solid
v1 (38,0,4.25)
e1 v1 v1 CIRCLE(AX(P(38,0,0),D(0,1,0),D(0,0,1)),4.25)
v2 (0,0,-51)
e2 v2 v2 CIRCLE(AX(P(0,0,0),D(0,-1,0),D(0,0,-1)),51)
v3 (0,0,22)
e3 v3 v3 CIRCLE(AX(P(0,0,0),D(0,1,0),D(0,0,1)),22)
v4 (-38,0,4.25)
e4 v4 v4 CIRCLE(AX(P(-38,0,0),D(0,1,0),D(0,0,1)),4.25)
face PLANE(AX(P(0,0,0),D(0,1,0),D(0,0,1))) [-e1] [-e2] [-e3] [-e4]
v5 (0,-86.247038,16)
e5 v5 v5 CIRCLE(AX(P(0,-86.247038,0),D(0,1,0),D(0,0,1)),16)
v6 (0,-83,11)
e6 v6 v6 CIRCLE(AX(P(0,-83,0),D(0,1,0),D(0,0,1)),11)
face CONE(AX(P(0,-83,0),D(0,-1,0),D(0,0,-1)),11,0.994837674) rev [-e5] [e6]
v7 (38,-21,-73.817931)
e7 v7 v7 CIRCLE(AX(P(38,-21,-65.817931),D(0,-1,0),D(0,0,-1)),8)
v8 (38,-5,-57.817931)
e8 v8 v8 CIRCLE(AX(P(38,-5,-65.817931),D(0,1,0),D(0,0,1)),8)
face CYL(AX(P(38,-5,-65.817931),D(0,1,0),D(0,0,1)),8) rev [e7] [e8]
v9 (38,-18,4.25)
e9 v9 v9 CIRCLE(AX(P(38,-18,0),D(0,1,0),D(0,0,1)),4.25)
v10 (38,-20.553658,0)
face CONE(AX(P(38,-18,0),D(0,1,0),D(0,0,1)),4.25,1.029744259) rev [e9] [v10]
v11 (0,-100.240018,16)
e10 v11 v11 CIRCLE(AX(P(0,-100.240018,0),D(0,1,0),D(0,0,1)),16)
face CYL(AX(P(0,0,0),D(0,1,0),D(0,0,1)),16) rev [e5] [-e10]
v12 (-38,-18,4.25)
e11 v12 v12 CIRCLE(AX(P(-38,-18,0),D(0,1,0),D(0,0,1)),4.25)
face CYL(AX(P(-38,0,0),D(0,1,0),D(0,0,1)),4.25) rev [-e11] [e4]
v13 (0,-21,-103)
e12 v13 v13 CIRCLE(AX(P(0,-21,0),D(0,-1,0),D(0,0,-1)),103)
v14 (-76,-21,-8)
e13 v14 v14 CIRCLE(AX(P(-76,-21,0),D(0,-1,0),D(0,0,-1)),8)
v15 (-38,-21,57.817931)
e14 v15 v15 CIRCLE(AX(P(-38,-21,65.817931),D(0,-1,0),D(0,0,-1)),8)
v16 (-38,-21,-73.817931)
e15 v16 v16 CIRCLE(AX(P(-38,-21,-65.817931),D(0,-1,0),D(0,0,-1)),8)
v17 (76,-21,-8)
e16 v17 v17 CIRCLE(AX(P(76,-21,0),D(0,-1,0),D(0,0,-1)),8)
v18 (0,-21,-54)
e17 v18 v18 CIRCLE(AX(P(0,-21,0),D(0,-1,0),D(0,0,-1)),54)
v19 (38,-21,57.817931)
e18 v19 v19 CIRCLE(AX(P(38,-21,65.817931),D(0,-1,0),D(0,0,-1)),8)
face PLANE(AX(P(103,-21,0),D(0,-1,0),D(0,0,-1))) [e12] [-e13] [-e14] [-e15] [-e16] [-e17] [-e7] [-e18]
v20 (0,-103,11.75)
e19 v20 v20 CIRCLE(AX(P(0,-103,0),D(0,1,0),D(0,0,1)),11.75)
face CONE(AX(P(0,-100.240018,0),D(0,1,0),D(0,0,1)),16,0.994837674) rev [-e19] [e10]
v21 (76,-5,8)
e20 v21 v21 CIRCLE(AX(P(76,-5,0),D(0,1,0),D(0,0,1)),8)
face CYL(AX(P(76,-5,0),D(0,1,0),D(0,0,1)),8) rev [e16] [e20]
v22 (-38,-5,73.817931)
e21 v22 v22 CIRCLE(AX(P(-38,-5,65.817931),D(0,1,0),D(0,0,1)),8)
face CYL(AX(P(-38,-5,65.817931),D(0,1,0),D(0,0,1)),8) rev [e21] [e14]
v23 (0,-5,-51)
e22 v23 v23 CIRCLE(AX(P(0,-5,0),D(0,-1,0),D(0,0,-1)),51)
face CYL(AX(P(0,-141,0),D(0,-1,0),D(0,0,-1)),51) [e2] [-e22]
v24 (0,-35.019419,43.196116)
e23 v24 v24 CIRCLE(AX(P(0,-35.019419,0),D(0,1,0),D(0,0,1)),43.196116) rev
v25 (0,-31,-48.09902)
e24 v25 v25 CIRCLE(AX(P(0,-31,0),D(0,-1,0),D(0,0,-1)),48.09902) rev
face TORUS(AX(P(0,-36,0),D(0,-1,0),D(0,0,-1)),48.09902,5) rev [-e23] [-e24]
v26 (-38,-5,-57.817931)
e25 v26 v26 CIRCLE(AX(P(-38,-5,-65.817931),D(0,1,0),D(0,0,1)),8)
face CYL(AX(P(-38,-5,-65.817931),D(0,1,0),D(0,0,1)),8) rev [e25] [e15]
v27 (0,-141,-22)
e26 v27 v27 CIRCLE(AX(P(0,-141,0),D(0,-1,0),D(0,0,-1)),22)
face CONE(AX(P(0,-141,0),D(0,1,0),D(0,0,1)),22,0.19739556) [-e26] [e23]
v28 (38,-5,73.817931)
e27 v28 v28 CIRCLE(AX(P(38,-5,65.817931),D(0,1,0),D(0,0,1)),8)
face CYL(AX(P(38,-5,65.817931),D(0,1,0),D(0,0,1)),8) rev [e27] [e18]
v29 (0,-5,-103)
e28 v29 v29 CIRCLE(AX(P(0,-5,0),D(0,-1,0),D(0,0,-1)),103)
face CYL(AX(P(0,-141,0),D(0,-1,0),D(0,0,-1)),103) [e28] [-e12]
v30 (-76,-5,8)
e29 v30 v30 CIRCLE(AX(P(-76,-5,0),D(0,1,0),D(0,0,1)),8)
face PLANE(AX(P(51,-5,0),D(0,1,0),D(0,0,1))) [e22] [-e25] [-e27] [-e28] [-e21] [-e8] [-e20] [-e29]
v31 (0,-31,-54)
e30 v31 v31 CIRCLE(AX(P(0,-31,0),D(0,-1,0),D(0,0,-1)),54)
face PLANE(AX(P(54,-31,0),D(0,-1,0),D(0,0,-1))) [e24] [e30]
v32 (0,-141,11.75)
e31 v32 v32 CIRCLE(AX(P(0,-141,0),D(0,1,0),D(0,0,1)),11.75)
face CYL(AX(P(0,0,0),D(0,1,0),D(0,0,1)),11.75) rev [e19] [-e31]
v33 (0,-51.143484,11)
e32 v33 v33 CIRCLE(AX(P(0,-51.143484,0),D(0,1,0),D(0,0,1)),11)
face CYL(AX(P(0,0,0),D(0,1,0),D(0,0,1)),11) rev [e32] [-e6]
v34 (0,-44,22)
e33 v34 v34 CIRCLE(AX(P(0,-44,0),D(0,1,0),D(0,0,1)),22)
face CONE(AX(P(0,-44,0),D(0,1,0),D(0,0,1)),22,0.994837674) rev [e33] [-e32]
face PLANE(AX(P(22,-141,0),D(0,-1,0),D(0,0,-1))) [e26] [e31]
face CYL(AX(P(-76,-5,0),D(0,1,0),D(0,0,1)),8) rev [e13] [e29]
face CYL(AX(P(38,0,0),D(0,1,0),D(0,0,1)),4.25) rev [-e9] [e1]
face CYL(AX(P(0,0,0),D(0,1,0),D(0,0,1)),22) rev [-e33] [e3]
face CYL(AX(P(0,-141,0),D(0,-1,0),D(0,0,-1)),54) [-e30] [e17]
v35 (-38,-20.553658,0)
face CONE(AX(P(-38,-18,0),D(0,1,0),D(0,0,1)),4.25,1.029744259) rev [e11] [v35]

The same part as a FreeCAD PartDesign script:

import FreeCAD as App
import Part
import Sketcher

V = App.Vector
Q = App.Units.Quantity


def edges_at(feature, points):
    """Names of the edges that pass closest to the given points."""
    edges = feature.Shape.Edges
    near = lambda p: min(range(len(edges)), key=lambda i: edges[i].distToShape(Part.Vertex(*p))[0])
    return sorted({f"Edge{near(p) + 1}" for p in points})

doc = App.newDocument("Part")
body = doc.addObject("PartDesign::Body", "Body")

sketch1 = body.newObject("Sketcher::SketchObject", "Sketch")
sketch1.AttachmentSupport = (doc.getObject("XY_Plane"), [""])
sketch1.MapMode = "FlatFace"
sketch1.addGeometry(Part.LineSegment(V(51, 0, 0), V(0, 0, 0)), False)
sketch1.addGeometry(Part.LineSegment(V(0, 0, 0), V(0, -141, 0)), False)
sketch1.addGeometry(Part.LineSegment(V(0, -141, 0), V(22, -141, 0)), False)
sketch1.addGeometry(Part.LineSegment(V(22, -141, 0), V(44, -31, 0)), False)
sketch1.addGeometry(Part.LineSegment(V(44, -31, 0), V(54, -31, 0)), False)
sketch1.addGeometry(Part.LineSegment(V(54, -31, 0), V(54, -21, 0)), False)
sketch1.addGeometry(Part.LineSegment(V(54, -21, 0), V(103, -21, 0)), False)
sketch1.addGeometry(Part.LineSegment(V(103, -21, 0), V(103, -5, 0)), False)
sketch1.addGeometry(Part.LineSegment(V(103, -5, 0), V(51, -5, 0)), False)
sketch1.addGeometry(Part.LineSegment(V(51, -5, 0), V(51, 0, 0)), False)
sketch1.addConstraint(Sketcher.Constraint("Coincident", 0, 2, 1, 1))
sketch1.addConstraint(Sketcher.Constraint("Coincident", 1, 2, 2, 1))
sketch1.addConstraint(Sketcher.Constraint("Coincident", 2, 2, 3, 1))
sketch1.addConstraint(Sketcher.Constraint("Coincident", 3, 2, 4, 1))
sketch1.addConstraint(Sketcher.Constraint("Coincident", 4, 2, 5, 1))
sketch1.addConstraint(Sketcher.Constraint("Coincident", 5, 2, 6, 1))
sketch1.addConstraint(Sketcher.Constraint("Coincident", 6, 2, 7, 1))
sketch1.addConstraint(Sketcher.Constraint("Coincident", 7, 2, 8, 1))
sketch1.addConstraint(Sketcher.Constraint("Coincident", 8, 2, 9, 1))
sketch1.addConstraint(Sketcher.Constraint("Coincident", 9, 2, 0, 1))
sketch1.addConstraint(Sketcher.Constraint("Horizontal", 0))
sketch1.addConstraint(Sketcher.Constraint("Vertical", 1))
sketch1.addConstraint(Sketcher.Constraint("Horizontal", 2))
sketch1.addConstraint(Sketcher.Constraint("Horizontal", 4))
sketch1.addConstraint(Sketcher.Constraint("Vertical", 5))
sketch1.addConstraint(Sketcher.Constraint("Horizontal", 6))
sketch1.addConstraint(Sketcher.Constraint("Vertical", 7))
sketch1.addConstraint(Sketcher.Constraint("Horizontal", 8))
sketch1.addConstraint(Sketcher.Constraint("Vertical", 9))
sketch1.addConstraint(Sketcher.Constraint("Coincident", 0, 2, -1, 1))
sketch1.addConstraint(Sketcher.Constraint("Equal", 4, 5))
sketch1.addConstraint(Sketcher.Constraint("DistanceX", 0, 2, 0, 1, 51.0))
sketch1.addConstraint(Sketcher.Constraint("DistanceX", 2, 1, 2, 2, 22.0))
sketch1.addConstraint(Sketcher.Constraint("DistanceX", 4, 1, 4, 2, 10.0))
sketch1.addConstraint(Sketcher.Constraint("DistanceX", 6, 1, 6, 2, 49.0))
sketch1.addConstraint(Sketcher.Constraint("DistanceX", 8, 2, 8, 1, 52.0))
sketch1.addConstraint(Sketcher.Constraint("DistanceY", 1, 2, 1, 1, 141.0))
sketch1.addConstraint(Sketcher.Constraint("DistanceY", 7, 1, 7, 2, 16.0))
sketch1.addConstraint(Sketcher.Constraint("DistanceY", 9, 1, 9, 2, 5.0))
revolution = body.newObject("PartDesign::Revolution", "Revolution")
revolution.Profile = sketch1
revolution.ReferenceAxis = (sketch1, ["V_Axis"])
revolution.Angle = 360

sketch2 = body.newObject("Sketcher::SketchObject", "Sketch001")
sketch2.AttachmentSupport = (doc.getObject("XY_Plane"), [""])
sketch2.MapMode = "FlatFace"
sketch2.addGeometry(Part.LineSegment(V(-12, -141, 0), V(0, -141, 0)), False)
sketch2.addGeometry(Part.LineSegment(V(0, -141, 0), V(0, 0, 0)), False)
sketch2.addGeometry(Part.LineSegment(V(0, 0, 0), V(-22, 0, 0)), False)
sketch2.addGeometry(Part.LineSegment(V(-22, 0, 0), V(-22, -44, 0)), False)
sketch2.addGeometry(Part.LineSegment(V(-22, -44, 0), V(-11, -51, 0)), False)
sketch2.addGeometry(Part.LineSegment(V(-11, -51, 0), V(-11, -83, 0)), False)
sketch2.addGeometry(Part.LineSegment(V(-11, -83, 0), V(-16, -86, 0)), False)
sketch2.addGeometry(Part.LineSegment(V(-16, -86, 0), V(-16, -100, 0)), False)
sketch2.addGeometry(Part.LineSegment(V(-16, -100, 0), V(-12, -103, 0)), False)
sketch2.addGeometry(Part.LineSegment(V(-12, -103, 0), V(-12, -141, 0)), False)
sketch2.addConstraint(Sketcher.Constraint("Coincident", 0, 2, 1, 1))
sketch2.addConstraint(Sketcher.Constraint("Coincident", 1, 2, 2, 1))
sketch2.addConstraint(Sketcher.Constraint("Coincident", 2, 2, 3, 1))
sketch2.addConstraint(Sketcher.Constraint("Coincident", 3, 2, 4, 1))
sketch2.addConstraint(Sketcher.Constraint("Coincident", 4, 2, 5, 1))
sketch2.addConstraint(Sketcher.Constraint("Coincident", 5, 2, 6, 1))
sketch2.addConstraint(Sketcher.Constraint("Coincident", 6, 2, 7, 1))
sketch2.addConstraint(Sketcher.Constraint("Coincident", 7, 2, 8, 1))
sketch2.addConstraint(Sketcher.Constraint("Coincident", 8, 2, 9, 1))
sketch2.addConstraint(Sketcher.Constraint("Coincident", 9, 2, 0, 1))
sketch2.addConstraint(Sketcher.Constraint("Horizontal", 0))
sketch2.addConstraint(Sketcher.Constraint("Vertical", 1))
sketch2.addConstraint(Sketcher.Constraint("Horizontal", 2))
sketch2.addConstraint(Sketcher.Constraint("Vertical", 3))
sketch2.addConstraint(Sketcher.Constraint("Vertical", 5))
sketch2.addConstraint(Sketcher.Constraint("Vertical", 7))
sketch2.addConstraint(Sketcher.Constraint("Vertical", 9))
sketch2.addConstraint(Sketcher.Constraint("Coincident", 1, 2, -1, 1))
sketch2.addConstraint(Sketcher.Constraint("Parallel", 4, 8))
sketch2.addConstraint(Sketcher.Constraint("DistanceX", 2, 2, 2, 1, 22.0))
sketch2.addConstraint(Sketcher.Constraint("DistanceY", 1, 1, 1, 2, 141.0))
sketch2.addConstraint(Sketcher.Constraint("DistanceY", 3, 2, 3, 1, 44.0))
sketch2.addConstraint(Sketcher.Constraint("DistanceY", 9, 2, 9, 1, 38.0))
sketch2.addConstraint(Sketcher.Constraint("Angle", 4, Q("-33 deg")))
sketch2.addConstraint(Sketcher.Constraint("Angle", 6, Q("-147 deg")))
sketch2.addConstraint(Sketcher.Constraint("DistanceX", 4, 2, -1, 1, 11.0))
sketch2.addConstraint(Sketcher.Constraint("DistanceY", 5, 2, -1, 1, 83.0))
sketch2.addConstraint(Sketcher.Constraint("DistanceX", 6, 2, -1, 1, 16.0))
sketch2.addConstraint(Sketcher.Constraint("DistanceX", 0, 1, 0, 2, 11.75))
groove = body.newObject("PartDesign::Groove", "Groove")
groove.Profile = sketch2
groove.ReferenceAxis = (sketch2, ["V_Axis"])
groove.Angle = 360
doc.recompute()

fillet = body.newObject("PartDesign::Fillet", "Fillet")
fillet.Base = (groove, edges_at(groove, [(0, -31, 44)]))
fillet.Radius = 5

sketch3 = body.newObject("Sketcher::SketchObject", "Sketch002")
sketch3.AttachmentSupport = (doc.getObject("XZ_Plane"), [""])
sketch3.MapMode = "FlatFace"
sketch3.AttachmentOffset = App.Placement(V(0, 0, 5), App.Rotation())
sketch3.addGeometry(Part.Circle(V(-76, 0, 0), V(0, 0, 1), 8), False)
sketch3.addConstraint(Sketcher.Constraint("PointOnObject", 0, 3, -1))
sketch3.addConstraint(Sketcher.Constraint("Diameter", 0, 16.0))
sketch3.addConstraint(Sketcher.Constraint("DistanceX", 0, 3, -1, 1, 76.0))
doc.recompute()
hole = body.newObject("PartDesign::Hole", "Hole")
hole.Profile = sketch3
hole.ThreadType = "None"
hole.Diameter = 16
hole.DepthType = "ThroughAll"
hole.Reversed = True
doc.recompute()

polarpattern = body.newObject("PartDesign::PolarPattern", "PolarPattern")
polarpattern.Originals = [hole]
polarpattern.Axis = (doc.getObject("Y_Axis"), [""])
polarpattern.Angle = 360
polarpattern.Occurrences = 6
body.Tip = polarpattern

sketch4 = body.newObject("Sketcher::SketchObject", "Sketch003")
sketch4.AttachmentSupport = (doc.getObject("XZ_Plane"), [""])
sketch4.MapMode = "FlatFace"
sketch4.addGeometry(Part.Circle(V(38, 0, 0), V(0, 0, 1), 4.2), False)
sketch4.addGeometry(Part.Circle(V(-38, 0, 0), V(0, 0, 1), 4.2), False)
sketch4.addConstraint(Sketcher.Constraint("Equal", 0, 1))
sketch4.addConstraint(Sketcher.Constraint("Symmetric", 0, 3, 1, 3, -1, 1))
sketch4.addConstraint(Sketcher.Constraint("PointOnObject", 0, 3, -1))
sketch4.addConstraint(Sketcher.Constraint("Diameter", 0, 8.5))
sketch4.addConstraint(Sketcher.Constraint("DistanceX", -1, 1, 0, 3, 38.0))
doc.recompute()
hole2 = body.newObject("PartDesign::Hole", "Hole001")
hole2.Profile = sketch4
hole2.ThreadType = "None"
hole2.Diameter = 8.5
hole2.DepthType = "Dimension"
hole2.Depth = 18
hole2.DrillPoint = "Angled"
hole2.DrillPointAngle = 118
hole2.Reversed = True

doc.recompute()
